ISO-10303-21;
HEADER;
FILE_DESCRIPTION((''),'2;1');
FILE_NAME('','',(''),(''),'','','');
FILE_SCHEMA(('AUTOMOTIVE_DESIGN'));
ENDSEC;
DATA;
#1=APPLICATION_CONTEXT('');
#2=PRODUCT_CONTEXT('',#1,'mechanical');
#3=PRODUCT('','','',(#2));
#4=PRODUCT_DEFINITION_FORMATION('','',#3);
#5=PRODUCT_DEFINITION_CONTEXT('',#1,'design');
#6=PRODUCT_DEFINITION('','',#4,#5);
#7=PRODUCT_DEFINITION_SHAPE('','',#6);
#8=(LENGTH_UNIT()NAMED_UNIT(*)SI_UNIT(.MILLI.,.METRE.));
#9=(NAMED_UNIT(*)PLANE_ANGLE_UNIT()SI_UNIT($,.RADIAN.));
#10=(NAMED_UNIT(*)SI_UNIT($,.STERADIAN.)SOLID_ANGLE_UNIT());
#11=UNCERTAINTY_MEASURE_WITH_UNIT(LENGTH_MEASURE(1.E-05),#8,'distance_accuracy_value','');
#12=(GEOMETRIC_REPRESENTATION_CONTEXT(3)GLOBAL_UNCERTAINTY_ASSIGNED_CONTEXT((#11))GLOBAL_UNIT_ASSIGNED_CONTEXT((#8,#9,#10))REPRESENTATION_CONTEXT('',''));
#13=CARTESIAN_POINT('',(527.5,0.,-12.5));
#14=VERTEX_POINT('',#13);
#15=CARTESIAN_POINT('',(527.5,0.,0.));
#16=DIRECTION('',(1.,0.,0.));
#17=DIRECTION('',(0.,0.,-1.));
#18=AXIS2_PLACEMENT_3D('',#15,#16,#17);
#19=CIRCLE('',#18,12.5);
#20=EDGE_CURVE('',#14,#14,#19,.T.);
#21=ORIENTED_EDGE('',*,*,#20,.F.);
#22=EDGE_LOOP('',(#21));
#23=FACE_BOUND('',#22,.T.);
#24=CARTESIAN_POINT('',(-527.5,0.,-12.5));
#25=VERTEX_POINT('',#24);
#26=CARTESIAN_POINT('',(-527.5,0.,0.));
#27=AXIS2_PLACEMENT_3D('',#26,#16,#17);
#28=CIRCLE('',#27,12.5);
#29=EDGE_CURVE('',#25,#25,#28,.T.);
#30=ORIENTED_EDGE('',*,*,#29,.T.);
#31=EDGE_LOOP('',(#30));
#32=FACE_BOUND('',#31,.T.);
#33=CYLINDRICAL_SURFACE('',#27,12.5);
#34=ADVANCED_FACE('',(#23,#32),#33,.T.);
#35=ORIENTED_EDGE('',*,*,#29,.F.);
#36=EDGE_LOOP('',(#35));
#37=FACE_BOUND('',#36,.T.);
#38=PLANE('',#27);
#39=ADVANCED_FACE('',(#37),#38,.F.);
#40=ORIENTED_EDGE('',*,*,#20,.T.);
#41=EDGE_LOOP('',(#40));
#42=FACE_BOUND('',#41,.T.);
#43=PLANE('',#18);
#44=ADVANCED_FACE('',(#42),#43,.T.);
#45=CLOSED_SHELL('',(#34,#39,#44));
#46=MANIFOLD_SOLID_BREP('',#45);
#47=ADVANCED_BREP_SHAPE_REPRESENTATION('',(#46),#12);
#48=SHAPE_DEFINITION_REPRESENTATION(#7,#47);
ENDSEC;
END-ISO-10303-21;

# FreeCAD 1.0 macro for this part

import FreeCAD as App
import Part
import Sketcher

V = App.Vector
Q = App.Units.Quantity

doc = App.newDocument("Part")
body = doc.addObject("PartDesign::Body", "Body")

# Sketch on YZ plane
sketch1 = body.newObject("Sketcher::SketchObject", "Sketch")
sketch1.AttachmentSupport = (doc.getObject("YZ_Plane"), [""])
sketch1.MapMode = "FlatFace"
sketch1.addGeometry(Part.Circle(V(0, 0, 0), V(0, 0, 1), 12), False)
sketch1.addConstraint([
    Sketcher.Constraint("Coincident", 0, 3, -1, 1),
    Sketcher.Constraint("Diameter", 0, Q("25 mm")),
])
pad1 = body.newObject("PartDesign::Pad", "Pad")
pad1.Profile = sketch1
pad1.Type = "TwoLengths"
pad1.Length = 527.5
pad1.Length2 = 527.5

doc.recompute()
